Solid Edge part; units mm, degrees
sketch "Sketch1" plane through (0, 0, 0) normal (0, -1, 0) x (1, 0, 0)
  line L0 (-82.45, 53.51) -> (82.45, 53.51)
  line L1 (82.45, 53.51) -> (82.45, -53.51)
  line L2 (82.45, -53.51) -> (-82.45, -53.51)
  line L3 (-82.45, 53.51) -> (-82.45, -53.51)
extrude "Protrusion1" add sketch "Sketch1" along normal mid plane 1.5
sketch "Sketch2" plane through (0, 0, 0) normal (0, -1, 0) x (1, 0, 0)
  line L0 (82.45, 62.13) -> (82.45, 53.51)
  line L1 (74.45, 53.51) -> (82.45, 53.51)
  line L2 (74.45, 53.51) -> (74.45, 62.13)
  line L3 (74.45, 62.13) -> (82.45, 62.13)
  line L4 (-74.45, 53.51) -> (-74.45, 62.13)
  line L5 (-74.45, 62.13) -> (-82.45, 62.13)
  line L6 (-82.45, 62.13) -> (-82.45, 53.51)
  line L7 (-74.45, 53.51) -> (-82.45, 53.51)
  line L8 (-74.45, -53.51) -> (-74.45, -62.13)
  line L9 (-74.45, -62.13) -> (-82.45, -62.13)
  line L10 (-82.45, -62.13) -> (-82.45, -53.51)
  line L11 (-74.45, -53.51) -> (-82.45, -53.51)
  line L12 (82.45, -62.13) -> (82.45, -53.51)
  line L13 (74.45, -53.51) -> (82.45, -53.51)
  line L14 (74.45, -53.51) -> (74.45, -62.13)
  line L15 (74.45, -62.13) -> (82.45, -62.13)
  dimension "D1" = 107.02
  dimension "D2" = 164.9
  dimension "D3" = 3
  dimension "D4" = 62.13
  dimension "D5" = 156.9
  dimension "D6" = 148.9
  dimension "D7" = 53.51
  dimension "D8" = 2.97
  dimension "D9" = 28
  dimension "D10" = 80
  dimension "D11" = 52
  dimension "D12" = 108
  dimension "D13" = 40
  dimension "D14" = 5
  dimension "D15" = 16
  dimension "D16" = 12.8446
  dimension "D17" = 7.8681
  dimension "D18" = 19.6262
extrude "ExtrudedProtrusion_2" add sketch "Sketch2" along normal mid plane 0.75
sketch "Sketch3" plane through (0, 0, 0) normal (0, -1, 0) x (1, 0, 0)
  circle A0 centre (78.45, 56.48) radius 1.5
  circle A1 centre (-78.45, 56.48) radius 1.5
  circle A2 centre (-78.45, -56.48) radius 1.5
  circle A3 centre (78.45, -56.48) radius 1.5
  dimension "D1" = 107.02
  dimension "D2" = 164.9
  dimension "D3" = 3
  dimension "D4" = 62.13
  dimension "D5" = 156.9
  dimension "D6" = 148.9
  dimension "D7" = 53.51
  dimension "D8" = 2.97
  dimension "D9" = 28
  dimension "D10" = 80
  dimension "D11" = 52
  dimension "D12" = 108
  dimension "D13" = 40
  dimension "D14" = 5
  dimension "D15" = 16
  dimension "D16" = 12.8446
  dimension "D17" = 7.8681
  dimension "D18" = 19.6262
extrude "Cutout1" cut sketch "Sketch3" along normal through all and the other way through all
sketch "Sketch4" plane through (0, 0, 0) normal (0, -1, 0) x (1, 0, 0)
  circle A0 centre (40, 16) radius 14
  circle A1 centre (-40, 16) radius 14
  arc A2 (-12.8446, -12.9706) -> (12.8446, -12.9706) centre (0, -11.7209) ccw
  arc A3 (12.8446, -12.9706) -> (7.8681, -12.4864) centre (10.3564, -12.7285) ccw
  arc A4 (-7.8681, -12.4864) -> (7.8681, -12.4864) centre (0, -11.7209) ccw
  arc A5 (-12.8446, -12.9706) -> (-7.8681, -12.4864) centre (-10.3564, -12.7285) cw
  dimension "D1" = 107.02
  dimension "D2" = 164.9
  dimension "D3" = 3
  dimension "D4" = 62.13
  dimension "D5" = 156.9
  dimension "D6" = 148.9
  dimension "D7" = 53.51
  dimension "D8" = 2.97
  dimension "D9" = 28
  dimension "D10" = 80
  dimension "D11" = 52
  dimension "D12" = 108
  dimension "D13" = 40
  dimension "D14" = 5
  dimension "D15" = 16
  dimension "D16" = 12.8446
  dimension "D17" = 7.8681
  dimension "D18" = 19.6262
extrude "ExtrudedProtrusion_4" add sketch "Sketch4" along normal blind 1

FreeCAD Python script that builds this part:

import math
import FreeCAD as App
import Part
import Sketcher

V = App.Vector
Q = App.Units.Quantity

doc = App.newDocument("Part")
body = doc.addObject("PartDesign::Body", "Body")

sketch1 = body.newObject("Sketcher::SketchObject", "Sketch")
sketch1.AttachmentSupport = (doc.getObject("XZ_Plane"), [""])
sketch1.MapMode = "FlatFace"
sketch1.addGeometry([
    Part.LineSegment(V(82, 54, 0), V(-82, 54, 0)),
    Part.LineSegment(V(-82, 54, 0), V(-82, -54, 0)),
    Part.LineSegment(V(-82, -54, 0), V(82, -54, 0)),
    Part.LineSegment(V(82, -54, 0), V(82, 54, 0)),
], False)
sketch1.addConstraint([
    Sketcher.Constraint("Coincident", 0, 2, 1, 1),
    Sketcher.Constraint("Coincident", 1, 2, 2, 1),
    Sketcher.Constraint("Coincident", 2, 2, 3, 1),
    Sketcher.Constraint("Coincident", 3, 2, 0, 1),
    Sketcher.Constraint("Horizontal", 0),
    Sketcher.Constraint("Vertical", 1),
    Sketcher.Constraint("Horizontal", 2),
    Sketcher.Constraint("Vertical", 3),
    Sketcher.Constraint("Symmetric", 0, 2, 2, 2, -1, 1),
    Sketcher.Constraint("DistanceX", 0, 2, 0, 1, Q("164.9 mm")),
    Sketcher.Constraint("DistanceY", 1, 2, 1, 1, Q("107.02 mm")),
])
pad1 = body.newObject("PartDesign::Pad", "Pad")
pad1.Profile = sketch1
pad1.Length = 1.5
pad1.Midplane = True

sketch2 = body.newObject("Sketcher::SketchObject", "Sketch001")
sketch2.AttachmentSupport = (doc.getObject("XZ_Plane"), [""])
sketch2.MapMode = "FlatFace"
sketch2.addGeometry([
    Part.LineSegment(V(82, 54, 0), V(82, 62, 0)),
    Part.LineSegment(V(82, 62, 0), V(74, 62, 0)),
    Part.LineSegment(V(74, 62, 0), V(74, 54, 0)),
    Part.LineSegment(V(74, 54, 0), V(82, 54, 0)),
    Part.LineSegment(V(-82, 54, 0), V(-74, 54, 0)),
    Part.LineSegment(V(-74, 54, 0), V(-74, 62, 0)),
    Part.LineSegment(V(-74, 62, 0), V(-82, 62, 0)),
    Part.LineSegment(V(-82, 62, 0), V(-82, 54, 0)),
    Part.LineSegment(V(-74, -62, 0), V(-74, -54, 0)),
    Part.LineSegment(V(-74, -54, 0), V(-82, -54, 0)),
    Part.LineSegment(V(-82, -54, 0), V(-82, -62, 0)),
    Part.LineSegment(V(-82, -62, 0), V(-74, -62, 0)),
    Part.LineSegment(V(74, -62, 0), V(82, -62, 0)),
    Part.LineSegment(V(82, -62, 0), V(82, -54, 0)),
    Part.LineSegment(V(82, -54, 0), V(74, -54, 0)),
    Part.LineSegment(V(74, -54, 0), V(74, -62, 0)),
], False)
sketch2.addConstraint([
    Sketcher.Constraint("Coincident", 0, 2, 1, 1),
    Sketcher.Constraint("Coincident", 1, 2, 2, 1),
    Sketcher.Constraint("Coincident", 2, 2, 3, 1),
    Sketcher.Constraint("Coincident", 3, 2, 0, 1),
    Sketcher.Constraint("Coincident", 4, 2, 5, 1),
    Sketcher.Constraint("Coincident", 5, 2, 6, 1),
    Sketcher.Constraint("Coincident", 6, 2, 7, 1),
    Sketcher.Constraint("Coincident", 7, 2, 4, 1),
    Sketcher.Constraint("Coincident", 8, 2, 9, 1),
    Sketcher.Constraint("Coincident", 9, 2, 10, 1),
    Sketcher.Constraint("Coincident", 10, 2, 11, 1),
    Sketcher.Constraint("Coincident", 11, 2, 8, 1),
    Sketcher.Constraint("Coincident", 12, 2, 13, 1),
    Sketcher.Constraint("Coincident", 13, 2, 14, 1),
    Sketcher.Constraint("Coincident", 14, 2, 15, 1),
    Sketcher.Constraint("Coincident", 15, 2, 12, 1),
    Sketcher.Constraint("Vertical", 0),
    Sketcher.Constraint("Horizontal", 1),
    Sketcher.Constraint("Vertical", 2),
    Sketcher.Constraint("Horizontal", 3),
    Sketcher.Constraint("Horizontal", 4),
    Sketcher.Constraint("Vertical", 5),
    Sketcher.Constraint("Horizontal", 6),
    Sketcher.Constraint("Vertical", 7),
    Sketcher.Constraint("Vertical", 8),
    Sketcher.Constraint("Horizontal", 9),
    Sketcher.Constraint("Vertical", 10),
    Sketcher.Constraint("Horizontal", 11),
    Sketcher.Constraint("Horizontal", 12),
    Sketcher.Constraint("Vertical", 13),
    Sketcher.Constraint("Horizontal", 14),
    Sketcher.Constraint("Vertical", 15),
    Sketcher.Constraint("Symmetric", 2, 2, 8, 2, -1, 1),
    Sketcher.Constraint("Symmetric", 0, 2, 10, 2, -1, 1),
    Sketcher.Constraint("Symmetric", 6, 2, 12, 2, -1, 1),
    Sketcher.Constraint("Symmetric", 4, 2, 14, 2, -1, 1),
    Sketcher.Constraint("Symmetric", 2, 2, 4, 2, -2),
    Sketcher.Constraint("Symmetric", 0, 2, 6, 2, -2),
    Sketcher.Constraint("DistanceX", 1, 2, 1, 1, Q("8 mm")),
    Sketcher.Constraint("DistanceY", 0, 1, 0, 2, Q("8.62 mm")),
    Sketcher.Constraint("DistanceX", 4, 2, 2, 2, Q("148.9 mm")),
    Sketcher.Constraint("DistanceY", -1, 1, 0, 2, Q("62.13 mm")),
])
pad2 = body.newObject("PartDesign::Pad", "Pad001")
pad2.Profile = sketch2
pad2.Length = 0.75
pad2.Midplane = True

sketch3 = body.newObject("Sketcher::SketchObject", "Sketch002")
sketch3.AttachmentSupport = (doc.getObject("XZ_Plane"), [""])
sketch3.MapMode = "FlatFace"
sketch3.addGeometry([
    Part.Circle(V(78.5, 56.5, 0), V(0, 0, 1), 1.5),
    Part.Circle(V(-78.5, 56.5, 0), V(0, 0, 1), 1.5),
    Part.Circle(V(-78.5, -56.5, 0), V(0, 0, 1), 1.5),
    Part.Circle(V(78.5, -56.5, 0), V(0, 0, 1), 1.5),
], False)
sketch3.addConstraint([
    Sketcher.Constraint("Equal", 0, 1),
    Sketcher.Constraint("Equal", 1, 2),
    Sketcher.Constraint("Equal", 2, 3),
    Sketcher.Constraint("Symmetric", 0, 3, 2, 3, -1, 1),
    Sketcher.Constraint("Symmetric", 1, 3, 3, 3, -1, 1),
    Sketcher.Constraint("Symmetric", 0, 3, 1, 3, -2),
    Sketcher.Constraint("Diameter", 0, Q("3 mm")),
    Sketcher.Constraint("DistanceX", 1, 3, 0, 3, Q("156.9 mm")),
    Sketcher.Constraint("DistanceY", -1, 1, 0, 3, Q("56.48 mm")),
])
pocket1 = body.newObject("PartDesign::Pocket", "Pocket")
pocket1.Profile = sketch3
pocket1.Type = "ThroughAll"
pocket1.Midplane = True

sketch4 = body.newObject("Sketcher::SketchObject", "Sketch003")
sketch4.AttachmentSupport = (doc.getObject("XZ_Plane"), [""])
sketch4.MapMode = "FlatFace"
sketch4.addGeometry([
    Part.Circle(V(40, 16, 0), V(0, 0, 1), 14),
    Part.Circle(V(-40, 16, 0), V(0, 0, 1), 14),
    Part.ArcOfCircle(Part.Circle(V(-10.3564, -12.7285, 0), V(0, 0, 1), 2.49995), math.radians(5.557121), math.radians(185.557343)),
    Part.ArcOfCircle(Part.Circle(V(0, -11.7209, 0), V(0, 0, 1), 12.905251), math.radians(-174.442966), math.radians(-5.557034)),
    Part.ArcOfCircle(Part.Circle(V(10.3564, -12.7285, 0), V(0, 0, 1), 2.49995), math.radians(-5.557343), math.radians(174.442879)),
    Part.ArcOfCircle(Part.Circle(V(0, -11.7209, 0), V(0, 0, 1), 7.905251), math.radians(-174.443091), math.radians(-5.556909)),
], False)
sketch4.addConstraint([
    Sketcher.Constraint("Coincident", 2, 2, 3, 1),
    Sketcher.Constraint("Coincident", 3, 2, 4, 1),
    Sketcher.Constraint("Coincident", 4, 2, 5, 2),
    Sketcher.Constraint("Coincident", 5, 1, 2, 1),
    Sketcher.Constraint("Coincident", 5, 3, 3, 3),
    Sketcher.Constraint("PointOnObject", 3, 3, -2),
    Sketcher.Constraint("Diameter", 0, Q("28 mm")),
    Sketcher.Constraint("Diameter", 1, Q("28 mm")),
    Sketcher.Constraint("Radius", 2, Q("2.5 mm")),
    Sketcher.Constraint("DistanceX", -1, 1, 0, 3, Q("40 mm")),
    Sketcher.Constraint("DistanceY", -1, 1, 0, 3, Q("16 mm")),
    Sketcher.Constraint("DistanceX", 1, 3, -1, 1, Q("40 mm")),
    Sketcher.Constraint("DistanceY", -1, 1, 1, 3, Q("16 mm")),
    Sketcher.Constraint("Radius", 3, Q("12.9053 mm")),
    Sketcher.Constraint("DistanceY", 3, 3, -1, 1, Q("11.721 mm")),
    Sketcher.Constraint("DistanceX", 5, 1, -1, 1, Q("7.868 mm")),
    Sketcher.Constraint("DistanceY", 2, 2, 2, 3, Q("0.242 mm")),
    Sketcher.Constraint("DistanceX", 2, 2, 4, 3, Q("23.201 mm")),
    Sketcher.Constraint("DistanceY", 2, 2, 4, 3, Q("0.242 mm")),
    Sketcher.Constraint("DistanceY", 3, 2, 4, 3, Q("0.242 mm")),
    Sketcher.Constraint("DistanceY", 4, 3, 4, 2, Q("0.242 mm")),
])
pad3 = body.newObject("PartDesign::Pad", "Pad002")
pad3.Profile = sketch4
pad3.Length = 1

doc.recompute()
